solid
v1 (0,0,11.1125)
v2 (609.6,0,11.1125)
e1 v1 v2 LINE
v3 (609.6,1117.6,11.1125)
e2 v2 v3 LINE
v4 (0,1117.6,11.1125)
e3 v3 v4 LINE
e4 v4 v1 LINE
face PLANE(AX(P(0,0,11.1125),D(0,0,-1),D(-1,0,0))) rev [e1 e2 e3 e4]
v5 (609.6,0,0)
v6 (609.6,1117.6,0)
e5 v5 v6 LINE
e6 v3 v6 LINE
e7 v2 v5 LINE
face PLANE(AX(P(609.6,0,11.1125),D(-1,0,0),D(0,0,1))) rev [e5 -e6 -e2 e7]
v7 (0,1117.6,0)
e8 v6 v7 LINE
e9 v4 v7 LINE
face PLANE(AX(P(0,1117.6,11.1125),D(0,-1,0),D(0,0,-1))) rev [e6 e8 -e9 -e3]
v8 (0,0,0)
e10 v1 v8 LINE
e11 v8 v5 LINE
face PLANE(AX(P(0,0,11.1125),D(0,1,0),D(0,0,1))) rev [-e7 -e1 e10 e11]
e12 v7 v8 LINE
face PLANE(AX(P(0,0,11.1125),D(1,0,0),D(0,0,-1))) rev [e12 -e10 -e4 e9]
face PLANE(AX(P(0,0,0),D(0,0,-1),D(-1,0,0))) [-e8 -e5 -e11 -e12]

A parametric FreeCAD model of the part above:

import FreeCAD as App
import Part
import Sketcher
Q = App.Units.Quantity


def add_polygon(sketch, points):
    """Adds a closed chain of lines whose ends are joined by coincident constraints."""
    first, n = sketch.GeometryCount, len(points)
    for a, b in zip(points, points[1:] + points[:1]):
        sketch.addGeometry(Part.LineSegment(App.Vector(*a, 0), App.Vector(*b, 0)), False)
    for i in range(n):
        sketch.addConstraint(Sketcher.Constraint("Coincident", first + i, 2, first + (i + 1) % n, 1))

doc = App.newDocument("Part")
body = doc.addObject("PartDesign::Body", "Body")

# Sketch on XY plane
sketch1 = body.newObject("Sketcher::SketchObject", "Sketch")
sketch1.AttachmentSupport = (doc.getObject("XY_Plane"), [""])
sketch1.MapMode = "FlatFace"
add_polygon(sketch1, [(0, 1118), (0, 0), (610, 0), (610, 1118)])  # lines 0-3
sketch1.addConstraint(Sketcher.Constraint("Vertical", 0))
sketch1.addConstraint(Sketcher.Constraint("Horizontal", 1))
sketch1.addConstraint(Sketcher.Constraint("Vertical", 2))
sketch1.addConstraint(Sketcher.Constraint("Horizontal", 3))
sketch1.addConstraint(Sketcher.Constraint("Coincident", 0, 2, -1, 1))
sketch1.addConstraint(Sketcher.Constraint("DistanceX", 1, 1, 1, 2, Q("24 in")))
sketch1.addConstraint(Sketcher.Constraint("DistanceY", 0, 2, 0, 1, Q("44 in")))
pad1 = body.newObject("PartDesign::Pad", "Pad")
pad1.Profile = sketch1
pad1.Length = Q("0.4375 in")

doc.recompute()
